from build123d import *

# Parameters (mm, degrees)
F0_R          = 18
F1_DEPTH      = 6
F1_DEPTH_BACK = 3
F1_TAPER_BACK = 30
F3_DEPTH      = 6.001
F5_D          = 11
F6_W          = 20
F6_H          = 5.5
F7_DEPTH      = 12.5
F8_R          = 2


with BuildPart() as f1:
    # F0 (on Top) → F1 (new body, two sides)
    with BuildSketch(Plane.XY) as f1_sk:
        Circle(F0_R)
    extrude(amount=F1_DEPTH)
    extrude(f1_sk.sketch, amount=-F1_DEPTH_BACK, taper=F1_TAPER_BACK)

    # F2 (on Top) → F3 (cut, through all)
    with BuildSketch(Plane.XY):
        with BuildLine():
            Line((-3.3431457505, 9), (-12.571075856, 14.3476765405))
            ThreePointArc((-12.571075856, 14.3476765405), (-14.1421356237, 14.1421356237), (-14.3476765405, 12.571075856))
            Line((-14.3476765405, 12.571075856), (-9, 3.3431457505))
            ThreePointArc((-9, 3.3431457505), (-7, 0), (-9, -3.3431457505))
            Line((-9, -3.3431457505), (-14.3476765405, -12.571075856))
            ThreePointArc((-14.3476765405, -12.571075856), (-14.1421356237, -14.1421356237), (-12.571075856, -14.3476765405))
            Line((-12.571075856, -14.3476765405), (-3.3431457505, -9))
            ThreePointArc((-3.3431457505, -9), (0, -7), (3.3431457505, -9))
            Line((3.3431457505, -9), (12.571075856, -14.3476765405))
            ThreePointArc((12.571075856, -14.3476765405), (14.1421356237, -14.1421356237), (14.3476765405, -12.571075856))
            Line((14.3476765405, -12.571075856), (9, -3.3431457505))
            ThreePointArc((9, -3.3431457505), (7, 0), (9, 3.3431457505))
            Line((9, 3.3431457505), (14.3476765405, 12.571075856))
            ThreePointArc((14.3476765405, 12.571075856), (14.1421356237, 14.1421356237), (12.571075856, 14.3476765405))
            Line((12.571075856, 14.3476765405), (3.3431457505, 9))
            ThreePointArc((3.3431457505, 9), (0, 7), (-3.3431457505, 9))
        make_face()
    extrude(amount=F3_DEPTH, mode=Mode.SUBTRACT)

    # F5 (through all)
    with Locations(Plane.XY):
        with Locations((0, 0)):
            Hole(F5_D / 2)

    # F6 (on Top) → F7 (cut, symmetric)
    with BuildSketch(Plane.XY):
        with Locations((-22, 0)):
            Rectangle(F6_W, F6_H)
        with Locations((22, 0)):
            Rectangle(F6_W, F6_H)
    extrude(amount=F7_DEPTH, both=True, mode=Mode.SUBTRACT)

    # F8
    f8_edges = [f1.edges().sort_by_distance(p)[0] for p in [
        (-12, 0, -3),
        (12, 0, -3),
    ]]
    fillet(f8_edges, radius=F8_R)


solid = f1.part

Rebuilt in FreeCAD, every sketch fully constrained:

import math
import FreeCAD as App
import Part
import Sketcher

V = App.Vector
Q = App.Units.Quantity


def edges_at(feature, points):
    """Names of the edges that pass closest to the given points."""
    edges = feature.Shape.Edges
    near = lambda p: min(range(len(edges)), key=lambda i: edges[i].distToShape(Part.Vertex(*p))[0])
    return sorted({f"Edge{near(p) + 1}" for p in points})

doc = App.newDocument("Part")
body = doc.addObject("PartDesign::Body", "Body")

# Sketch on XY plane
sketch1 = body.newObject("Sketcher::SketchObject", "Sketch")
sketch1.AttachmentSupport = (doc.getObject("XY_Plane"), [""])
sketch1.MapMode = "FlatFace"
sketch1.addGeometry(Part.Circle(V(0, 0, 0), V(0, 0, 1), 18), False)
sketch1.addConstraint(Sketcher.Constraint("Coincident", 0, 3, -1, 1))
sketch1.addConstraint(Sketcher.Constraint("Diameter", 0, Q("36 mm")))
pad1 = body.newObject("PartDesign::Pad", "Pad")
pad1.Profile = sketch1
pad1.Length = 6
pad2 = body.newObject("PartDesign::Pad", "Pad001")
pad2.Profile = sketch1
pad2.Length = 3
pad2.Reversed = True
pad2.TaperAngle = -30

# Sketch on XY plane
sketch2 = body.newObject("Sketcher::SketchObject", "Sketch001")
sketch2.AttachmentSupport = (doc.getObject("XY_Plane"), [""])
sketch2.MapMode = "FlatFace"
sketch2.addGeometry(Part.LineSegment(V(-3.343146, 9, 0), V(-12.571076, 14.347677, 0)), False)
sketch2.addGeometry(Part.ArcOfCircle(Part.Circle(V(-13.222897, 13.222897, 0), V(0, 0, 1), 1.3), math.radians(59.907285), math.radians(210.092715)), False)
sketch2.addGeometry(Part.LineSegment(V(-14.347677, 12.571076, 0), V(-9, 3.343146, 0)), False)
sketch2.addGeometry(Part.ArcOfCircle(Part.Circle(V(-10.794156, 0, 0), V(0, 0, 1), 3.794156), math.radians(-61.779014), math.radians(61.779014)), False)
sketch2.addGeometry(Part.LineSegment(V(-9, -3.343146, 0), V(-14.347677, -12.571076, 0)), False)
sketch2.addGeometry(Part.ArcOfCircle(Part.Circle(V(-13.222897, -13.222897, 0), V(0, 0, 1), 1.3), math.radians(149.907285), math.radians(300.092715)), False)
sketch2.addGeometry(Part.LineSegment(V(-12.571076, -14.347677, 0), V(-3.343146, -9, 0)), False)
sketch2.addGeometry(Part.ArcOfCircle(Part.Circle(V(0, -10.794156, 0), V(0, 0, 1), 3.794156), math.radians(28.220986), math.radians(151.779014)), False)
sketch2.addGeometry(Part.LineSegment(V(3.343146, -9, 0), V(12.571076, -14.347677, 0)), False)
sketch2.addGeometry(Part.ArcOfCircle(Part.Circle(V(13.222897, -13.222897, 0), V(0, 0, 1), 1.3), math.radians(-120.092715), math.radians(30.092715)), False)
sketch2.addGeometry(Part.LineSegment(V(14.347677, -12.571076, 0), V(9, -3.343146, 0)), False)
sketch2.addGeometry(Part.ArcOfCircle(Part.Circle(V(10.794156, 0, 0), V(0, 0, 1), 3.794156), math.radians(118.220986), math.radians(241.779014)), False)
sketch2.addGeometry(Part.LineSegment(V(9, 3.343146, 0), V(14.347677, 12.571076, 0)), False)
sketch2.addGeometry(Part.ArcOfCircle(Part.Circle(V(13.222897, 13.222897, 0), V(0, 0, 1), 1.3), math.radians(-30.092715), math.radians(120.092715)), False)
sketch2.addGeometry(Part.LineSegment(V(12.571076, 14.347677, 0), V(3.343146, 9, 0)), False)
sketch2.addGeometry(Part.ArcOfCircle(Part.Circle(V(0, 10.794156, 0), V(0, 0, 1), 3.794156), math.radians(-151.779014), math.radians(-28.220986)), False)
sketch2.addConstraint(Sketcher.Constraint("Coincident", 0, 2, 1, 1))
sketch2.addConstraint(Sketcher.Constraint("Coincident", 1, 2, 2, 1))
sketch2.addConstraint(Sketcher.Constraint("Coincident", 2, 2, 3, 2))
sketch2.addConstraint(Sketcher.Constraint("Coincident", 3, 1, 4, 1))
sketch2.addConstraint(Sketcher.Constraint("Coincident", 4, 2, 5, 1))
sketch2.addConstraint(Sketcher.Constraint("Coincident", 5, 2, 6, 1))
sketch2.addConstraint(Sketcher.Constraint("Coincident", 6, 2, 7, 2))
sketch2.addConstraint(Sketcher.Constraint("Coincident", 7, 1, 8, 1))
sketch2.addConstraint(Sketcher.Constraint("Coincident", 8, 2, 9, 1))
sketch2.addConstraint(Sketcher.Constraint("Coincident", 9, 2, 10, 1))
sketch2.addConstraint(Sketcher.Constraint("Coincident", 10, 2, 11, 2))
sketch2.addConstraint(Sketcher.Constraint("Coincident", 11, 1, 12, 1))
sketch2.addConstraint(Sketcher.Constraint("Coincident", 12, 2, 13, 1))
sketch2.addConstraint(Sketcher.Constraint("Coincident", 13, 2, 14, 1))
sketch2.addConstraint(Sketcher.Constraint("Coincident", 14, 2, 15, 2))
sketch2.addConstraint(Sketcher.Constraint("Coincident", 15, 1, 0, 1))
sketch2.addConstraint(Sketcher.Constraint("PointOnObject", 3, 3, -1))
sketch2.addConstraint(Sketcher.Constraint("PointOnObject", 7, 3, -2))
sketch2.addConstraint(Sketcher.Constraint("PointOnObject", 11, 3, -1))
sketch2.addConstraint(Sketcher.Constraint("PointOnObject", 15, 3, -2))
sketch2.addConstraint(Sketcher.Constraint("Radius", 1, Q("1.3 mm")))
sketch2.addConstraint(Sketcher.Constraint("Radius", 5, Q("1.3 mm")))
sketch2.addConstraint(Sketcher.Constraint("Radius", 9, Q("1.3 mm")))
sketch2.addConstraint(Sketcher.Constraint("Radius", 13, Q("1.3 mm")))
sketch2.addConstraint(Sketcher.Constraint("DistanceX", 2, 2, -1, 1, Q("9 mm")))
sketch2.addConstraint(Sketcher.Constraint("DistanceX", 3, 1, -1, 1, Q("9 mm")))
sketch2.addConstraint(Sketcher.Constraint("DistanceY", 6, 2, -1, 1, Q("9 mm")))
sketch2.addConstraint(Sketcher.Constraint("DistanceY", 7, 1, -1, 1, Q("9 mm")))
sketch2.addConstraint(Sketcher.Constraint("DistanceX", -1, 1, 10, 2, Q("9 mm")))
sketch2.addConstraint(Sketcher.Constraint("DistanceX", -1, 1, 11, 1, Q("9 mm")))
sketch2.addConstraint(Sketcher.Constraint("DistanceY", -1, 1, 14, 2, Q("9 mm")))
sketch2.addConstraint(Sketcher.Constraint("DistanceY", -1, 1, 15, 1, Q("9 mm")))
sketch2.addConstraint(Sketcher.Constraint("Radius", 3, Q("3.794156 mm")))
sketch2.addConstraint(Sketcher.Constraint("Radius", 7, Q("3.794156 mm")))
sketch2.addConstraint(Sketcher.Constraint("Radius", 11, Q("3.794156 mm")))
sketch2.addConstraint(Sketcher.Constraint("Radius", 15, Q("3.794156 mm")))
sketch2.addConstraint(Sketcher.Constraint("DistanceX", 1, 2, 0, 2, Q("1.776601 mm")))
sketch2.addConstraint(Sketcher.Constraint("DistanceY", 1, 2, 0, 2, Q("1.776601 mm")))
sketch2.addConstraint(Sketcher.Constraint("DistanceY", 3, 1, 15, 3, Q("14.137302 mm")))
sketch2.addConstraint(Sketcher.Constraint("DistanceX", 4, 2, 5, 2, Q("1.776601 mm")))
sketch2.addConstraint(Sketcher.Constraint("DistanceY", 5, 2, 4, 2, Q("1.776601 mm")))
sketch2.addConstraint(Sketcher.Constraint("DistanceX", 8, 2, 9, 2, Q("1.776601 mm")))
sketch2.addConstraint(Sketcher.Constraint("DistanceY", 8, 2, 9, 2, Q("1.776601 mm")))
sketch2.addConstraint(Sketcher.Constraint("DistanceX", 13, 2, 12, 2, Q("1.776601 mm")))
sketch2.addConstraint(Sketcher.Constraint("DistanceY", 12, 2, 13, 2, Q("1.776601 mm")))
sketch2.addConstraint(Sketcher.Constraint("DistanceX", 1, 3, 3, 3, Q("2.428741 mm")))
sketch2.addConstraint(Sketcher.Constraint("DistanceX", 5, 3, 3, 3, Q("2.428741 mm")))
sketch2.addConstraint(Sketcher.Constraint("DistanceY", 5, 3, 7, 3, Q("2.428741 mm")))
sketch2.addConstraint(Sketcher.Constraint("DistanceY", 9, 3, 7, 3, Q("2.428741 mm")))
sketch2.addConstraint(Sketcher.Constraint("DistanceX", 11, 3, 9, 3, Q("2.428741 mm")))
sketch2.addConstraint(Sketcher.Constraint("DistanceX", 3, 3, 11, 3, Q("21.588312 mm")))
sketch2.addConstraint(Sketcher.Constraint("DistanceX", 11, 3, 13, 3, Q("2.428741 mm")))
sketch2.addConstraint(Sketcher.Constraint("DistanceY", 15, 3, 1, 3, Q("2.428741 mm")))
sketch2.addConstraint(Sketcher.Constraint("DistanceY", 15, 3, 13, 3, Q("2.428741 mm")))
sketch2.addConstraint(Sketcher.Constraint("DistanceY", 7, 3, 15, 3, Q("21.588312 mm")))
sketch2.addConstraint(Sketcher.Constraint("DistanceY", 2, 2, 1, 2, Q("9.22793 mm")))
pocket1 = body.newObject("PartDesign::Pocket", "Pocket")
pocket1.Profile = sketch2
pocket1.Type = "ThroughAll"
pocket1.Reversed = True

# Sketch on XY plane
sketch3 = body.newObject("Sketcher::SketchObject", "Sketch002")
sketch3.AttachmentSupport = (doc.getObject("XY_Plane"), [""])
sketch3.MapMode = "FlatFace"
sketch3.addGeometry(Part.Circle(V(0, 0, 0), V(0, 0, 1), 6), False)
sketch3.addConstraint(Sketcher.Constraint("Coincident", 0, 3, -1, 1))
sketch3.addConstraint(Sketcher.Constraint("Diameter", 0, Q("11 mm")))
doc.recompute()
hole = body.newObject("PartDesign::Hole", "Hole")
hole.Profile = sketch3
hole.ThreadType = "None"
hole.Diameter = 11
hole.DepthType = "ThroughAll"

# Sketch on XY plane
sketch4 = body.newObject("Sketcher::SketchObject", "Sketch003")
sketch4.AttachmentSupport = (doc.getObject("XY_Plane"), [""])
sketch4.MapMode = "FlatFace"
sketch4.addGeometry(Part.LineSegment(V(-32, 3, 0), V(-32, -3, 0)), False)
sketch4.addGeometry(Part.LineSegment(V(-32, -3, 0), V(-12, -3, 0)), False)
sketch4.addGeometry(Part.LineSegment(V(-12, -3, 0), V(-12, 3, 0)), False)
sketch4.addGeometry(Part.LineSegment(V(-12, 3, 0), V(-32, 3, 0)), False)
sketch4.addGeometry(Part.LineSegment(V(12, 3, 0), V(12, -3, 0)), False)
sketch4.addGeometry(Part.LineSegment(V(12, -3, 0), V(32, -3, 0)), False)
sketch4.addGeometry(Part.LineSegment(V(32, -3, 0), V(32, 3, 0)), False)
sketch4.addGeometry(Part.LineSegment(V(32, 3, 0), V(12, 3, 0)), False)
sketch4.addConstraint(Sketcher.Constraint("Coincident", 0, 2, 1, 1))
sketch4.addConstraint(Sketcher.Constraint("Coincident", 1, 2, 2, 1))
sketch4.addConstraint(Sketcher.Constraint("Coincident", 2, 2, 3, 1))
sketch4.addConstraint(Sketcher.Constraint("Coincident", 3, 2, 0, 1))
sketch4.addConstraint(Sketcher.Constraint("Coincident", 4, 2, 5, 1))
sketch4.addConstraint(Sketcher.Constraint("Coincident", 5, 2, 6, 1))
sketch4.addConstraint(Sketcher.Constraint("Coincident", 6, 2, 7, 1))
sketch4.addConstraint(Sketcher.Constraint("Coincident", 7, 2, 4, 1))
sketch4.addConstraint(Sketcher.Constraint("Vertical", 0))
sketch4.addConstraint(Sketcher.Constraint("Horizontal", 1))
sketch4.addConstraint(Sketcher.Constraint("Vertical", 2))
sketch4.addConstraint(Sketcher.Constraint("Horizontal", 3))
sketch4.addConstraint(Sketcher.Constraint("Vertical", 4))
sketch4.addConstraint(Sketcher.Constraint("Horizontal", 5))
sketch4.addConstraint(Sketcher.Constraint("Vertical", 6))
sketch4.addConstraint(Sketcher.Constraint("Horizontal", 7))
sketch4.addConstraint(Sketcher.Constraint("Symmetric", 2, 2, 4, 2, -1, 1))
sketch4.addConstraint(Sketcher.Constraint("Symmetric", 0, 2, 6, 2, -1, 1))
sketch4.addConstraint(Sketcher.Constraint("Horizontal", 1, 2, 4, 2))
sketch4.addConstraint(Sketcher.Constraint("DistanceX", 1, 1, 1, 2, Q("20 mm")))
sketch4.addConstraint(Sketcher.Constraint("DistanceY", 0, 2, 0, 1, Q("5.5 mm")))
sketch4.addConstraint(Sketcher.Constraint("DistanceX", 0, 2, -1, 1, Q("32 mm")))
pocket2 = body.newObject("PartDesign::Pocket", "Pocket001")
pocket2.Profile = sketch4
pocket2.Length = 25
pocket2.Midplane = True
doc.recompute()

fillet = body.newObject("PartDesign::Fillet", "Fillet")
fillet.Base = (pocket2, edges_at(pocket2, [(-12, 0, -3), (12, 0, -3)]))
fillet.Radius = 2

doc.recompute()
